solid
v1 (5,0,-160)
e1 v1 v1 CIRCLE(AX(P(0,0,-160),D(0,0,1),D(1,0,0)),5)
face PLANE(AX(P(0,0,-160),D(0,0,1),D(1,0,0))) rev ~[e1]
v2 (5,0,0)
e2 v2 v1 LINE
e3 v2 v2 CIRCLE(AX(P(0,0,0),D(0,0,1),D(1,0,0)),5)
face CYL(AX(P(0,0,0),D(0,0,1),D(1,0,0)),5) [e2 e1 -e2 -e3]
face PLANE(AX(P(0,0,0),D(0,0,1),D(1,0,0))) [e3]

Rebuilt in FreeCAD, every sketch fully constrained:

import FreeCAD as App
import Part
import Sketcher

doc = App.newDocument("Part")
body = doc.addObject("PartDesign::Body", "Body")

sketch1 = body.newObject("Sketcher::SketchObject", "Sketch")
sketch1.AttachmentSupport = (doc.getObject("XY_Plane"), [""])
sketch1.MapMode = "FlatFace"
sketch1.addGeometry(Part.Circle(App.Vector(0, 0, 0), App.Vector(0, 0, 1), 5), False)
sketch1.addConstraint(Sketcher.Constraint("Coincident", 0, 3, -1, 1))
sketch1.addConstraint(Sketcher.Constraint("Diameter", 0, 10.0))
pad1 = body.newObject("PartDesign::Pad", "Pad")
pad1.Profile = sketch1
pad1.Length = 160
pad1.Reversed = True

doc.recompute()
